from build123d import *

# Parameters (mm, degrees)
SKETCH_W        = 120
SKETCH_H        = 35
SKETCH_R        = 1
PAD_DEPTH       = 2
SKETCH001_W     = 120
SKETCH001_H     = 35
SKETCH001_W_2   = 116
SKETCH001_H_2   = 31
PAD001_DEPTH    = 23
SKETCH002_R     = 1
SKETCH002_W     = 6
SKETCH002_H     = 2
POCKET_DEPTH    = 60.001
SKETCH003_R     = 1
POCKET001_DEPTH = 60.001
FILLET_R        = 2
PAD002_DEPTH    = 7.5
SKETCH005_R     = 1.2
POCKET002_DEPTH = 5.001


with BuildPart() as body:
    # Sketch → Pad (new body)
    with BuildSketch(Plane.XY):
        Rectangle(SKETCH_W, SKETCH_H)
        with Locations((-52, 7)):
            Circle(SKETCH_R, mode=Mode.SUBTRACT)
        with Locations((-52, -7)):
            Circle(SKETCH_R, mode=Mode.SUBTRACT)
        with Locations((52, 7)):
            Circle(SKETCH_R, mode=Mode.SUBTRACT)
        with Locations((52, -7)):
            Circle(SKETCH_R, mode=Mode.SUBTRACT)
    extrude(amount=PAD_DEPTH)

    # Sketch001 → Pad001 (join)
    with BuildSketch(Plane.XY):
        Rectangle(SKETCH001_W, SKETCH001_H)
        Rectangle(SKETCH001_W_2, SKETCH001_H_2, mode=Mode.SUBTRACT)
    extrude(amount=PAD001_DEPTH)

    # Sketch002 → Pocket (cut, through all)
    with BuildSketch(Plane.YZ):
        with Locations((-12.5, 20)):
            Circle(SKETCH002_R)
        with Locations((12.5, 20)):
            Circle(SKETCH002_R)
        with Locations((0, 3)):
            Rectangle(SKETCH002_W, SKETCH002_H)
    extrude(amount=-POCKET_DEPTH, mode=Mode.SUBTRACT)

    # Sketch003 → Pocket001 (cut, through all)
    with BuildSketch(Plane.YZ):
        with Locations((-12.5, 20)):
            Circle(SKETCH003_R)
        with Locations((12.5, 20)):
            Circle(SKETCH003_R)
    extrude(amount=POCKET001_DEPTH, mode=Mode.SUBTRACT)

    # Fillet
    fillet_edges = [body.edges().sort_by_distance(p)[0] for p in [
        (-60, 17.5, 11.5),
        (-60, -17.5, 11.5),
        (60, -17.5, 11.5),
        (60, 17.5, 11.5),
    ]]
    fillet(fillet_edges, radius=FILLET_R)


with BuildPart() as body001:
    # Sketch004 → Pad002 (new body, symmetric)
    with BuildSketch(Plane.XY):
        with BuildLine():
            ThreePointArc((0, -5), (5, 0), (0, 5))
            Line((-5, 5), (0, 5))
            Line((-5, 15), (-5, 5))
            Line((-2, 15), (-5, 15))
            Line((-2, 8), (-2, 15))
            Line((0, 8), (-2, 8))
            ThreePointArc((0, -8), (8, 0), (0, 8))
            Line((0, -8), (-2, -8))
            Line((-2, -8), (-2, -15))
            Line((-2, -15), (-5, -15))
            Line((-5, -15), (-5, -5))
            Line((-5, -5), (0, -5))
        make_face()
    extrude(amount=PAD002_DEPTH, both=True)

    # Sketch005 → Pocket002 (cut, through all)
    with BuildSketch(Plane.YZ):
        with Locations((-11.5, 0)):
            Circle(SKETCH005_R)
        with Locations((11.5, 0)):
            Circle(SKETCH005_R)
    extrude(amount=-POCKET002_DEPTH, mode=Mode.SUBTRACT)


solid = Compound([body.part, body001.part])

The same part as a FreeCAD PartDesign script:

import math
import FreeCAD as App
import Part
import Sketcher
from FreeCAD import Vector
Q = App.Units.Quantity


def edges_at(feature, points):
    """Names of the edges that pass closest to the given points."""
    edges = feature.Shape.Edges
    near = lambda p: min(range(len(edges)), key=lambda i: edges[i].distToShape(Part.Vertex(*p))[0])
    return sorted({f"Edge{near(p) + 1}" for p in points})

doc = App.newDocument("Part")
body = doc.addObject("PartDesign::Body", "Body")

# Sketch on XY plane
sketch1 = doc.addObject("Sketcher::SketchObject", "Sketch")
body.addObject(sketch1)
sketch1.AttachmentSupport = (doc.XY_Plane, [""])
sketch1.MapMode = "FlatFace"
sketch1.addGeometry([
    Part.LineSegment(Vector(-60, 17.5, 0), Vector(-60, -17.5, 0)),  # 0
    Part.LineSegment(Vector(-60, -17.5, 0), Vector(60, -17.5, 0)),  # 1
    Part.LineSegment(Vector(60, -17.5, 0), Vector(60, 17.5, 0)),  # 2
    Part.LineSegment(Vector(60, 17.5, 0), Vector(-60, 17.5, 0)),  # 3
    Part.Circle(Vector(-52, -7, 0), Vector(0, 0, 1), 1),  # 4
    Part.Circle(Vector(52, -7, 0), Vector(0, 0, 1), 1),  # 5
    Part.Circle(Vector(-52, 7, 0), Vector(0, 0, 1), 1),  # 6
    Part.Circle(Vector(52, 7, 0), Vector(0, 0, 1), 1),  # 7
], False)
sketch1.addConstraint([
    Sketcher.Constraint("Coincident", 0, 2, 1, 1),
    Sketcher.Constraint("Coincident", 1, 2, 2, 1),
    Sketcher.Constraint("Coincident", 2, 2, 3, 1),
    Sketcher.Constraint("Coincident", 3, 2, 0, 1),
    Sketcher.Constraint("Vertical", 0),
    Sketcher.Constraint("Horizontal", 1),
    Sketcher.Constraint("Vertical", 2),
    Sketcher.Constraint("Horizontal", 3),
    Sketcher.Constraint("Equal", 4, 5),
    Sketcher.Constraint("Equal", 5, 6),
    Sketcher.Constraint("Equal", 6, 7),
    Sketcher.Constraint("Symmetric", 5, 3, 6, 3, -1, 1),
    Sketcher.Constraint("Symmetric", 4, 3, 7, 3, -1, 1),
    Sketcher.Constraint("Symmetric", 0, 2, 2, 2, -1, 1),
    Sketcher.Constraint("Symmetric", 4, 3, 5, 3, -2),
    Sketcher.Constraint("Diameter", 4, Q("2 mm")),
    Sketcher.Constraint("DistanceX", 1, 1, 1, 2, Q("120 mm")),
    Sketcher.Constraint("DistanceY", 0, 2, 0, 1, Q("35 mm")),
    Sketcher.Constraint("DistanceX", 4, 3, -1, 1, Q("52 mm")),
    Sketcher.Constraint("DistanceY", 4, 3, -1, 1, Q("7 mm")),
])
pad1 = doc.addObject("PartDesign::Pad", "Pad")
body.addObject(pad1)
pad1.Profile = sketch1
pad1.Length = 2

# Sketch on XY plane
sketch2 = doc.addObject("Sketcher::SketchObject", "Sketch001")
body.addObject(sketch2)
sketch2.AttachmentSupport = (doc.XY_Plane, [""])
sketch2.MapMode = "FlatFace"
sketch2.addGeometry([
    Part.LineSegment(Vector(-60, 18, 0), Vector(-60, -18, 0)),  # 0
    Part.LineSegment(Vector(-60, -18, 0), Vector(60, -18, 0)),  # 1
    Part.LineSegment(Vector(60, -18, 0), Vector(60, 18, 0)),  # 2
    Part.LineSegment(Vector(60, 18, 0), Vector(-60, 18, 0)),  # 3
    Part.LineSegment(Vector(58, -16, 0), Vector(-58, -16, 0)),  # 4
    Part.LineSegment(Vector(-58, -16, 0), Vector(-58, 16, 0)),  # 5
    Part.LineSegment(Vector(-58, 16, 0), Vector(58, 16, 0)),  # 6
    Part.LineSegment(Vector(58, 16, 0), Vector(58, -16, 0)),  # 7
], False)
sketch2.addConstraint([
    Sketcher.Constraint("Coincident", 0, 2, 1, 1),
    Sketcher.Constraint("Coincident", 1, 2, 2, 1),
    Sketcher.Constraint("Coincident", 2, 2, 3, 1),
    Sketcher.Constraint("Coincident", 3, 2, 0, 1),
    Sketcher.Constraint("Coincident", 4, 2, 5, 1),
    Sketcher.Constraint("Coincident", 5, 2, 6, 1),
    Sketcher.Constraint("Coincident", 6, 2, 7, 1),
    Sketcher.Constraint("Coincident", 7, 2, 4, 1),
    Sketcher.Constraint("Vertical", 0),
    Sketcher.Constraint("Horizontal", 1),
    Sketcher.Constraint("Vertical", 2),
    Sketcher.Constraint("Horizontal", 3),
    Sketcher.Constraint("Horizontal", 4),
    Sketcher.Constraint("Vertical", 5),
    Sketcher.Constraint("Horizontal", 6),
    Sketcher.Constraint("Vertical", 7),
    Sketcher.Constraint("Symmetric", 0, 2, 2, 2, -1, 1),
    Sketcher.Constraint("Symmetric", 4, 2, 6, 2, -1, 1),
    Sketcher.Constraint("DistanceX", 1, 1, 1, 2, Q("120 mm")),
    Sketcher.Constraint("DistanceX", 4, 2, 4, 1, Q("116 mm")),
    Sketcher.Constraint("DistanceY", 0, 2, 0, 1, Q("35 mm")),
    Sketcher.Constraint("DistanceY", 5, 1, 5, 2, Q("31 mm")),
])
pad2 = doc.addObject("PartDesign::Pad", "Pad001")
body.addObject(pad2)
pad2.Profile = sketch2
pad2.Length = 23

# Sketch on YZ plane
sketch3 = doc.addObject("Sketcher::SketchObject", "Sketch002")
body.addObject(sketch3)
sketch3.AttachmentSupport = (doc.YZ_Plane, [""])
sketch3.MapMode = "FlatFace"
sketch3.addGeometry([
    Part.Circle(Vector(-12.5, 20, 0), Vector(0, 0, 1), 1),  # 0
    Part.Circle(Vector(12.5, 20, 0), Vector(0, 0, 1), 1),  # 1
    Part.LineSegment(Vector(-3, 4, 0), Vector(-3, 2, 0)),  # 2
    Part.LineSegment(Vector(-3, 2, 0), Vector(3, 2, 0)),  # 3
    Part.LineSegment(Vector(3, 2, 0), Vector(3, 4, 0)),  # 4
    Part.LineSegment(Vector(3, 4, 0), Vector(-3, 4, 0)),  # 5
], False)
sketch3.addConstraint([
    Sketcher.Constraint("Coincident", 2, 2, 3, 1),
    Sketcher.Constraint("Coincident", 3, 2, 4, 1),
    Sketcher.Constraint("Coincident", 4, 2, 5, 1),
    Sketcher.Constraint("Coincident", 5, 2, 2, 1),
    Sketcher.Constraint("Vertical", 2),
    Sketcher.Constraint("Horizontal", 3),
    Sketcher.Constraint("Vertical", 4),
    Sketcher.Constraint("Horizontal", 5),
    Sketcher.Constraint("Equal", 0, 1),
    Sketcher.Constraint("Symmetric", 0, 3, 1, 3, -2),
    Sketcher.Constraint("Diameter", 0, Q("2 mm")),
    Sketcher.Constraint("DistanceX", 3, 1, 3, 2, Q("6 mm")),
    Sketcher.Constraint("DistanceY", 2, 2, 2, 1, Q("2 mm")),
    Sketcher.Constraint("DistanceY", -1, 1, 0, 3, Q("20 mm")),
    Sketcher.Constraint("DistanceX", 2, 2, -1, 1, Q("3 mm")),
    Sketcher.Constraint("DistanceY", -1, 1, 2, 2, Q("2 mm")),
    Sketcher.Constraint("DistanceX", 0, 3, 1, 3, Q("25 mm")),
])
pocket1 = doc.addObject("PartDesign::Pocket", "Pocket")
body.addObject(pocket1)
pocket1.Profile = sketch3
pocket1.Type = "ThroughAll"

# Sketch on YZ plane
sketch4 = doc.addObject("Sketcher::SketchObject", "Sketch003")
body.addObject(sketch4)
sketch4.AttachmentSupport = (doc.YZ_Plane, [""])
sketch4.MapMode = "FlatFace"
sketch4.addGeometry([
    Part.Circle(Vector(-12.5, 20, 0), Vector(0, 0, 1), 1),
    Part.Circle(Vector(12.5, 20, 0), Vector(0, 0, 1), 1),
], False)
sketch4.addConstraint([
    Sketcher.Constraint("Equal", 0, 1),
    Sketcher.Constraint("Symmetric", 0, 3, 1, 3, -2),
    Sketcher.Constraint("Diameter", 0, Q("2 mm")),
    Sketcher.Constraint("DistanceY", -1, 1, 0, 3, Q("20 mm")),
    Sketcher.Constraint("DistanceX", 0, 3, 1, 3, Q("25 mm")),
])
pocket2 = doc.addObject("PartDesign::Pocket", "Pocket001")
body.addObject(pocket2)
pocket2.Profile = sketch4
pocket2.Type = "ThroughAll"
pocket2.Reversed = True
doc.recompute()

fillet = doc.addObject("PartDesign::Fillet", "Fillet")
body.addObject(fillet)
fillet.Base = (pocket2, edges_at(pocket2, [
    (-60, 17.5, 11.5),
    (-60, -17.5, 11.5),
    (60, -17.5, 11.5),
    (60, 17.5, 11.5),
]))
fillet.Radius = 2
body2 = doc.addObject("PartDesign::Body", "Body001")

# Sketch on XY plane
sketch5 = doc.addObject("Sketcher::SketchObject", "Sketch004")
body2.addObject(sketch5)
sketch5.AttachmentSupport = (doc.getObject("XY_Plane001"), [""])
sketch5.MapMode = "FlatFace"
sketch5.addGeometry([
    Part.ArcOfCircle(Part.Circle(Vector(0, 0, 0), Vector(0, 0, 1), 5), math.radians(-90), math.radians(90)),  # 0
    Part.LineSegment(Vector(0, -5, 0), Vector(-5, -5, 0)),  # 1
    Part.LineSegment(Vector(-5, -5, 0), Vector(-5, -15, 0)),  # 2
    Part.LineSegment(Vector(-5, -15, 0), Vector(-2, -15, 0)),  # 3
    Part.LineSegment(Vector(-2, -15, 0), Vector(-2, -8, 0)),  # 4
    Part.LineSegment(Vector(-2, -8, 0), Vector(0, -8, 0)),  # 5
    Part.ArcOfCircle(Part.Circle(Vector(0, 0, 0), Vector(0, 0, 1), 8), math.radians(-90), math.radians(90)),  # 6
    Part.LineSegment(Vector(0, 8, 0), Vector(-2, 8, 0)),  # 7
    Part.LineSegment(Vector(-2, 8, 0), Vector(-2, 15, 0)),  # 8
    Part.LineSegment(Vector(-2, 15, 0), Vector(-5, 15, 0)),  # 9
    Part.LineSegment(Vector(-5, 15, 0), Vector(-5, 5, 0)),  # 10
    Part.LineSegment(Vector(-5, 5, 0), Vector(0, 5, 0)),  # 11
], False)
sketch5.addConstraint([
    Sketcher.Constraint("Tangent", 0, 1, 1, 1),
    Sketcher.Constraint("Coincident", 1, 2, 2, 1),
    Sketcher.Constraint("Coincident", 2, 2, 3, 1),
    Sketcher.Constraint("Coincident", 3, 2, 4, 1),
    Sketcher.Constraint("Coincident", 4, 2, 5, 1),
    Sketcher.Constraint("Tangent", 5, 2, 6, 1),
    Sketcher.Constraint("Tangent", 6, 2, 7, 1),
    Sketcher.Constraint("Coincident", 7, 2, 8, 1),
    Sketcher.Constraint("Coincident", 8, 2, 9, 1),
    Sketcher.Constraint("Coincident", 9, 2, 10, 1),
    Sketcher.Constraint("Coincident", 10, 2, 11, 1),
    Sketcher.Constraint("Tangent", 11, 2, 0, 2),
    Sketcher.Constraint("Horizontal", 1),
    Sketcher.Constraint("Vertical", 2),
    Sketcher.Constraint("Horizontal", 3),
    Sketcher.Constraint("Vertical", 4),
    Sketcher.Constraint("Horizontal", 5),
    Sketcher.Constraint("Horizontal", 7),
    Sketcher.Constraint("Vertical", 8),
    Sketcher.Constraint("Horizontal", 9),
    Sketcher.Constraint("Vertical", 10),
    Sketcher.Constraint("Horizontal", 11),
    Sketcher.Constraint("Coincident", 0, 3, -1, 1),
    Sketcher.Constraint("Coincident", 6, 3, -1, 1),
    Sketcher.Constraint("Symmetric", 3, 2, 8, 2, -1),
    Sketcher.Constraint("Vertical", 2, 2, 9, 2),
    Sketcher.Constraint("Radius", 0, Q("5 mm")),
    Sketcher.Constraint("Radius", 6, Q("8 mm")),
    Sketcher.Constraint("DistanceX", 1, 2, 1, 1, Q("5 mm")),
    Sketcher.Constraint("DistanceX", 3, 1, 3, 2, Q("3 mm")),
    Sketcher.Constraint("DistanceY", 2, 2, 2, 1, Q("10 mm")),
])
pad3 = doc.addObject("PartDesign::Pad", "Pad002")
body2.addObject(pad3)
pad3.Profile = sketch5
pad3.Length = 15
pad3.Midplane = True

# Sketch on YZ plane
sketch6 = doc.addObject("Sketcher::SketchObject", "Sketch005")
body2.addObject(sketch6)
sketch6.AttachmentSupport = (doc.getObject("YZ_Plane001"), [""])
sketch6.MapMode = "FlatFace"
sketch6.addGeometry([
    Part.Circle(Vector(-11.5, 0, 0), Vector(0, 0, 1), 1.2),
    Part.Circle(Vector(11.5, 0, 0), Vector(0, 0, 1), 1.2),
], False)
sketch6.addConstraint([
    Sketcher.Constraint("Equal", 0, 1),
    Sketcher.Constraint("Symmetric", 0, 3, 1, 3, -1, 1),
    Sketcher.Constraint("PointOnObject", 0, 3, -1),
    Sketcher.Constraint("Diameter", 0, Q("2.4 mm")),
    Sketcher.Constraint("DistanceX", 0, 3, 1, 3, Q("23 mm")),
])
pocket3 = doc.addObject("PartDesign::Pocket", "Pocket002")
body2.addObject(pocket3)
pocket3.Profile = sketch6
pocket3.Type = "ThroughAll"

doc.recompute()
